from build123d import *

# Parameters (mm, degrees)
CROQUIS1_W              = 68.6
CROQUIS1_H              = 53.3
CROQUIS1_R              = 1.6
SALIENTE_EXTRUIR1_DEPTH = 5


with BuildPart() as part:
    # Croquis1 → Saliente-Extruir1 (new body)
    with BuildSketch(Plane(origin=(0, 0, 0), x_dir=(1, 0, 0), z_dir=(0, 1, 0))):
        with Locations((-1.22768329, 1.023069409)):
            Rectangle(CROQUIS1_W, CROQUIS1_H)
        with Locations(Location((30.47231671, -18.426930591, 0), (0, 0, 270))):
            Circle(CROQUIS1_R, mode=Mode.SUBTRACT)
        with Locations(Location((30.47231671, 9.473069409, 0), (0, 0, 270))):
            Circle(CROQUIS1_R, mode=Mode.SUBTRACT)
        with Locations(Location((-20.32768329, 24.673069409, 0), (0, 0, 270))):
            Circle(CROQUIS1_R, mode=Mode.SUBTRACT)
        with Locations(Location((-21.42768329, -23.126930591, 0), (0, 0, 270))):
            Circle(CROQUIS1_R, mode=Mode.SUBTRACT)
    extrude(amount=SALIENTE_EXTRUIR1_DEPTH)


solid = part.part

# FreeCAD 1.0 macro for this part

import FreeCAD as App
import Part
import Sketcher

doc = App.newDocument("Part")
body = doc.addObject("PartDesign::Body", "Body")

# Sketch on XZ plane
sketch1 = doc.addObject("Sketcher::SketchObject", "Sketch")
body.addObject(sketch1)
sketch1.AttachmentSupport = (doc.XZ_Plane, [""])
sketch1.MapMode = "FlatFace"
sketch1.addGeometry(Part.LineSegment(App.Vector(-35.5, -27.7, 0), App.Vector(-35.5, 25.6, 0)), False)
sketch1.addGeometry(Part.LineSegment(App.Vector(-35.5, 25.6, 0), App.Vector(33.1, 25.6, 0)), False)
sketch1.addGeometry(Part.LineSegment(App.Vector(33.1, 25.6, 0), App.Vector(33.1, -27.7, 0)), False)
sketch1.addGeometry(Part.LineSegment(App.Vector(33.1, -27.7, 0), App.Vector(-35.5, -27.7, 0)), False)
sketch1.addGeometry(Part.Circle(App.Vector(-21.4, 23.1, 0), App.Vector(0, 0, 1), 1.6), False)
sketch1.addGeometry(Part.Circle(App.Vector(30.5, 18.4, 0), App.Vector(0, 0, 1), 1.6), False)
sketch1.addGeometry(Part.Circle(App.Vector(-20.3, -24.7, 0), App.Vector(0, 0, 1), 1.6), False)
sketch1.addGeometry(Part.Circle(App.Vector(30.5, -9.5, 0), App.Vector(0, 0, 1), 1.6), False)
sketch1.addConstraint(Sketcher.Constraint("Coincident", 0, 2, 1, 1))
sketch1.addConstraint(Sketcher.Constraint("Coincident", 1, 2, 2, 1))
sketch1.addConstraint(Sketcher.Constraint("Coincident", 2, 2, 3, 1))
sketch1.addConstraint(Sketcher.Constraint("Coincident", 3, 2, 0, 1))
sketch1.addConstraint(Sketcher.Constraint("Vertical", 0))
sketch1.addConstraint(Sketcher.Constraint("Horizontal", 1))
sketch1.addConstraint(Sketcher.Constraint("Vertical", 2))
sketch1.addConstraint(Sketcher.Constraint("Horizontal", 3))
sketch1.addConstraint(Sketcher.Constraint("Equal", 4, 5))
sketch1.addConstraint(Sketcher.Constraint("Equal", 5, 6))
sketch1.addConstraint(Sketcher.Constraint("Equal", 6, 7))
sketch1.addConstraint(Sketcher.Constraint("Vertical", 5, 3, 7, 3))
sketch1.addConstraint(Sketcher.Constraint("Diameter", 4, 3.2))
sketch1.addConstraint(Sketcher.Constraint("DistanceX", 1, 1, 1, 2, 68.6))
sketch1.addConstraint(Sketcher.Constraint("DistanceY", 0, 1, 0, 2, 53.3))
sketch1.addConstraint(Sketcher.Constraint("DistanceX", 0, 2, 5, 3, 66.0))
sketch1.addConstraint(Sketcher.Constraint("DistanceY", 2, 2, 6, 3, 3.0))
sketch1.addConstraint(Sketcher.Constraint("DistanceX", 4, 3, 5, 3, 51.9))
sketch1.addConstraint(Sketcher.Constraint("DistanceY", 5, 3, 4, 3, 4.7))
sketch1.addConstraint(Sketcher.Constraint("DistanceX", 4, 3, 6, 3, 1.1))
sketch1.addConstraint(Sketcher.Constraint("DistanceY", 6, 3, 4, 3, 47.8))
sketch1.addConstraint(Sketcher.Constraint("DistanceY", 7, 3, 5, 3, 27.9))
sketch1.addConstraint(Sketcher.Constraint("DistanceY", -1, 1, 4, 3, 23.126931))
sketch1.addConstraint(Sketcher.Constraint("DistanceX", 4, 3, -1, 1, 21.427683))
pad1 = doc.addObject("PartDesign::Pad", "Pad")
body.addObject(pad1)
pad1.Profile = sketch1
pad1.Length = 5
pad1.Reversed = True

doc.recompute()
